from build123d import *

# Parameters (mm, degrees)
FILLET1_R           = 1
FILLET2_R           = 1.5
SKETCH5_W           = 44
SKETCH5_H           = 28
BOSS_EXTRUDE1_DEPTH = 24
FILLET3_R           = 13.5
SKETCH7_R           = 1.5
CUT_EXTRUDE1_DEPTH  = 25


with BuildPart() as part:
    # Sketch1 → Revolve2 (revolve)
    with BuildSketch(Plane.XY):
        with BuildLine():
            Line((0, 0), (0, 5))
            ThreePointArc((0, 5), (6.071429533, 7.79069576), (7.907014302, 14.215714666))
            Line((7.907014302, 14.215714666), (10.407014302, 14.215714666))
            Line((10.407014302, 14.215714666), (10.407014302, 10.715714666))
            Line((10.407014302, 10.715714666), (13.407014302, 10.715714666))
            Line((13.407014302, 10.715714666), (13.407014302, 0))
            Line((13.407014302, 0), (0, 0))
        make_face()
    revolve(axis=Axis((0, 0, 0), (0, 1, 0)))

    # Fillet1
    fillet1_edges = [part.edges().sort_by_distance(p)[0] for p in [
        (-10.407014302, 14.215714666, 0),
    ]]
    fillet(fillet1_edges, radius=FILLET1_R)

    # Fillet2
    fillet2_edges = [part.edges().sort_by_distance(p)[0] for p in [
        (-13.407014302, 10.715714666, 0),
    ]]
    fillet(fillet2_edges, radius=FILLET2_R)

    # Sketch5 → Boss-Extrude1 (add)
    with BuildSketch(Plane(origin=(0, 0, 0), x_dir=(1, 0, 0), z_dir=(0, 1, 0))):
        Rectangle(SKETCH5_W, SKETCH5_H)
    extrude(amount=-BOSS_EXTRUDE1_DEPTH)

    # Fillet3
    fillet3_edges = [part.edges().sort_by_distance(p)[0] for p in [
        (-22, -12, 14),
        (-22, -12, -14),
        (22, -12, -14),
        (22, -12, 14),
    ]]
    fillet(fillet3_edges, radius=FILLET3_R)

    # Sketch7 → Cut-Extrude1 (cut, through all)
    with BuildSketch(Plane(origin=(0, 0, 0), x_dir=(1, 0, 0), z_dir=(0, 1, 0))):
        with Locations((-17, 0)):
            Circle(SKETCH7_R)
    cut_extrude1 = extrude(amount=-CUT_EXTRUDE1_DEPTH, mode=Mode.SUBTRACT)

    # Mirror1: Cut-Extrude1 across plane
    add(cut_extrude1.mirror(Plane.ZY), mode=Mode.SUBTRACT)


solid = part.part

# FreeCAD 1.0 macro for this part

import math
import FreeCAD as App
import Part
import Sketcher


def edges_at(feature, points):
    """Names of the edges that pass closest to the given points."""
    edges = feature.Shape.Edges
    near = lambda p: min(range(len(edges)), key=lambda i: edges[i].distToShape(Part.Vertex(*p))[0])
    return sorted({f"Edge{near(p) + 1}" for p in points})

doc = App.newDocument("Part")
body = doc.addObject("PartDesign::Body", "Body")

# Sketch on XY plane
sketch1 = body.newObject("Sketcher::SketchObject", "Sketch")
sketch1.AttachmentSupport = (doc.getObject("XY_Plane"), [""])
sketch1.MapMode = "FlatFace"
sketch1.addGeometry([
    Part.LineSegment(App.Vector(0, 5, 0), App.Vector(0, 0, 0)),  # 0
    Part.LineSegment(App.Vector(0, 0, 0), App.Vector(13.4, 0, 0)),  # 1
    Part.LineSegment(App.Vector(13.4, 0, 0), App.Vector(13.4, 10.7, 0)),  # 2
    Part.LineSegment(App.Vector(13.4, 10.7, 0), App.Vector(10.4, 10.7, 0)),  # 3
    Part.LineSegment(App.Vector(10.4, 10.7, 0), App.Vector(10.4, 14.2, 0)),  # 4
    Part.LineSegment(App.Vector(10.4, 14.2, 0), App.Vector(7.9, 14.2, 0)),  # 5
    Part.ArcOfCircle(Part.Circle(App.Vector(0, 13, 0), App.Vector(0, 0, 1), 8), math.radians(-90), math.radians(9)),  # 6
], False)
sketch1.addConstraint([
    Sketcher.Constraint("Coincident", 0, 2, 1, 1),
    Sketcher.Constraint("Coincident", 1, 2, 2, 1),
    Sketcher.Constraint("Coincident", 2, 2, 3, 1),
    Sketcher.Constraint("Coincident", 3, 2, 4, 1),
    Sketcher.Constraint("Coincident", 4, 2, 5, 1),
    Sketcher.Constraint("Coincident", 5, 2, 6, 2),
    Sketcher.Constraint("Coincident", 6, 1, 0, 1),
    Sketcher.Constraint("Vertical", 0),
    Sketcher.Constraint("Horizontal", 1),
    Sketcher.Constraint("Vertical", 2),
    Sketcher.Constraint("Horizontal", 3),
    Sketcher.Constraint("Vertical", 4),
    Sketcher.Constraint("Horizontal", 5),
    Sketcher.Constraint("Coincident", 0, 2, -1, 1),
    Sketcher.Constraint("Radius", 6, 8.0),
    Sketcher.Constraint("DistanceX", 3, 2, 3, 1, 3.0),
    Sketcher.Constraint("DistanceY", 0, 2, 0, 1, 5.0),
    Sketcher.Constraint("DistanceX", 5, 2, 5, 1, 2.5),
    Sketcher.Constraint("DistanceY", 4, 1, 4, 2, 3.5),
    Sketcher.Constraint("DistanceX", 1, 1, 1, 2, 13.407014),
    Sketcher.Constraint("DistanceY", 2, 1, 2, 2, 10.715715),
])
revolution = body.newObject("PartDesign::Revolution", "Revolution")
revolution.Profile = sketch1
revolution.ReferenceAxis = (sketch1, ["V_Axis"])
revolution.Angle = 360
doc.recompute()

fillet = body.newObject("PartDesign::Fillet", "Fillet")
fillet.Base = (revolution, edges_at(revolution, [(-10.407, 14.216, 0)]))
fillet.Radius = 1
doc.recompute()

fillet2 = body.newObject("PartDesign::Fillet", "Fillet001")
fillet2.Base = (fillet, edges_at(fillet, [(-13.407, 10.716, 0)]))
fillet2.Radius = 1.5

# Sketch on XZ plane
sketch2 = body.newObject("Sketcher::SketchObject", "Sketch001")
sketch2.AttachmentSupport = (doc.getObject("XZ_Plane"), [""])
sketch2.MapMode = "FlatFace"
sketch2.addGeometry([
    Part.LineSegment(App.Vector(-22, -14, 0), App.Vector(-22, 14, 0)),
    Part.LineSegment(App.Vector(-22, 14, 0), App.Vector(22, 14, 0)),
    Part.LineSegment(App.Vector(22, 14, 0), App.Vector(22, -14, 0)),
    Part.LineSegment(App.Vector(22, -14, 0), App.Vector(-22, -14, 0)),
], False)
sketch2.addConstraint([
    Sketcher.Constraint("Coincident", 0, 2, 1, 1),
    Sketcher.Constraint("Coincident", 1, 2, 2, 1),
    Sketcher.Constraint("Coincident", 2, 2, 3, 1),
    Sketcher.Constraint("Coincident", 3, 2, 0, 1),
    Sketcher.Constraint("Vertical", 0),
    Sketcher.Constraint("Horizontal", 1),
    Sketcher.Constraint("Vertical", 2),
    Sketcher.Constraint("Horizontal", 3),
    Sketcher.Constraint("Symmetric", 0, 2, 2, 2, -1, 1),
    Sketcher.Constraint("DistanceX", 1, 1, 1, 2, 44.0),
    Sketcher.Constraint("DistanceY", 0, 1, 0, 2, 28.0),
])
pad1 = body.newObject("PartDesign::Pad", "Pad")
pad1.Profile = sketch2
pad1.Length = 24
doc.recompute()

fillet3 = body.newObject("PartDesign::Fillet", "Fillet002")
fillet3.Base = (pad1, edges_at(pad1, [
    (-22, -12, 14),
    (-22, -12, -14),
    (22, -12, -14),
    (22, -12, 14),
]))
fillet3.Radius = 13.5

# Sketch on XZ plane
sketch3 = body.newObject("Sketcher::SketchObject", "Sketch002")
sketch3.AttachmentSupport = (doc.getObject("XZ_Plane"), [""])
sketch3.MapMode = "FlatFace"
sketch3.addGeometry(Part.Circle(App.Vector(-17, 0, 0), App.Vector(0, 0, 1), 1.5), False)
sketch3.addConstraint([
    Sketcher.Constraint("PointOnObject", 0, 3, -1),
    Sketcher.Constraint("Diameter", 0, 3.0),
    Sketcher.Constraint("DistanceX", 0, 3, -1, 1, 17.0),
])
pocket1 = body.newObject("PartDesign::Pocket", "Pocket")
pocket1.Profile = sketch3
pocket1.Type = "ThroughAll"
pocket1.Reversed = True
doc.recompute()

mirrored = body.newObject("PartDesign::Mirrored", "Mirrored")
mirrored.Originals = [pocket1]
mirrored.MirrorPlane = (doc.getObject("YZ_Plane"), [""])
body.Tip = mirrored

doc.recompute()
